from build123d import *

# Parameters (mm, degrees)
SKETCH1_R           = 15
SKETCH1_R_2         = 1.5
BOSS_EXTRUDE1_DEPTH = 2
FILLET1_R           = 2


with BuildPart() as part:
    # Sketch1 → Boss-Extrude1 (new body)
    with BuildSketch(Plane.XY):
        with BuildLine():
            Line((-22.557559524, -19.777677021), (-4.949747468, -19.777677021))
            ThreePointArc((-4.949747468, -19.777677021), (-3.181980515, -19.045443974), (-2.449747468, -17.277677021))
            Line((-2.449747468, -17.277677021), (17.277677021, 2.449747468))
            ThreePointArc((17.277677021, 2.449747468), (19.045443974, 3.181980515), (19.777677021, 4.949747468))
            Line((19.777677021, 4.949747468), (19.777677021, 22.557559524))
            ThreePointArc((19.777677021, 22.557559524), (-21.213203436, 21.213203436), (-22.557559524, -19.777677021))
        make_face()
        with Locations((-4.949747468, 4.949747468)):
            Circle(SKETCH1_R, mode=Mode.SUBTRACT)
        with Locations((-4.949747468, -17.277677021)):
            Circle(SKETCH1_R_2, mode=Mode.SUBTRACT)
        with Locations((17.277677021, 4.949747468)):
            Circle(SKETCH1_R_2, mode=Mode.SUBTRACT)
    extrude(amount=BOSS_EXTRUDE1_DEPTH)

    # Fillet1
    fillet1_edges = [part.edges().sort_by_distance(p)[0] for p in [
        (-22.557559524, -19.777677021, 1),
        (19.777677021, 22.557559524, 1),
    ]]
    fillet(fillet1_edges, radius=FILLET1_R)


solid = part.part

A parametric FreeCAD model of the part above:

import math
import FreeCAD as App
import Part
import Sketcher
from FreeCAD import Vector
Q = App.Units.Quantity


def edges_at(feature, points):
    """Names of the edges that pass closest to the given points."""
    edges = feature.Shape.Edges
    near = lambda p: min(range(len(edges)), key=lambda i: edges[i].distToShape(Part.Vertex(*p))[0])
    return sorted({f"Edge{near(p) + 1}" for p in points})

doc = App.newDocument("Part")
body = doc.addObject("PartDesign::Body", "Body")

# Sketch on XY plane
sketch1 = body.newObject("Sketcher::SketchObject", "Sketch")
sketch1.AttachmentSupport = (doc.getObject("XY_Plane"), [""])
sketch1.MapMode = "FlatFace"
sketch1.addGeometry(Part.LineSegment(Vector(-22.6, -19.8, 0), Vector(-4.9, -19.8, 0)), False)
sketch1.addGeometry(Part.ArcOfCircle(Part.Circle(Vector(-4.9, -17.3, 0), Vector(0, 0, 1), 2.5), math.radians(-90), math.radians(0)), False)
sketch1.addGeometry(Part.LineSegment(Vector(-2.4, -17.3, 0), Vector(17.3, 2.4, 0)), False)
sketch1.addGeometry(Part.ArcOfCircle(Part.Circle(Vector(17.3, 4.9, 0), Vector(0, 0, 1), 2.5), math.radians(-90), math.radians(0)), False)
sketch1.addGeometry(Part.LineSegment(Vector(19.8, 4.9, 0), Vector(19.8, 22.6, 0)), False)
sketch1.addGeometry(Part.ArcOfCircle(Part.Circle(Vector(0, 0, 0), Vector(0, 0, 1), 30), math.radians(49), math.radians(221)), False)
sketch1.addGeometry(Part.Circle(Vector(-4.9, -17.3, 0), Vector(0, 0, 1), 1.5), False)
sketch1.addGeometry(Part.Circle(Vector(-4.9, 4.9, 0), Vector(0, 0, 1), 15), False)
sketch1.addGeometry(Part.Circle(Vector(17.3, 4.9, 0), Vector(0, 0, 1), 1.5), False)
sketch1.addConstraint(Sketcher.Constraint("Tangent", 0, 2, 1, 1))
sketch1.addConstraint(Sketcher.Constraint("Coincident", 1, 2, 2, 1))
sketch1.addConstraint(Sketcher.Constraint("Coincident", 2, 2, 3, 1))
sketch1.addConstraint(Sketcher.Constraint("Tangent", 3, 2, 4, 1))
sketch1.addConstraint(Sketcher.Constraint("Coincident", 4, 2, 5, 1))
sketch1.addConstraint(Sketcher.Constraint("Coincident", 5, 2, 0, 1))
sketch1.addConstraint(Sketcher.Constraint("Horizontal", 0))
sketch1.addConstraint(Sketcher.Constraint("Vertical", 4))
sketch1.addConstraint(Sketcher.Constraint("Coincident", 5, 3, -1, 1))
sketch1.addConstraint(Sketcher.Constraint("Coincident", 6, 3, 1, 3))
sketch1.addConstraint(Sketcher.Constraint("Coincident", 8, 3, 3, 3))
sketch1.addConstraint(Sketcher.Constraint("Equal", 1, 3))
sketch1.addConstraint(Sketcher.Constraint("Equal", 6, 8))
sketch1.addConstraint(Sketcher.Constraint("Horizontal", 3, 3, 7, 3))
sketch1.addConstraint(Sketcher.Constraint("Horizontal", 6, 3, 1, 2))
sketch1.addConstraint(Sketcher.Constraint("Vertical", 6, 3, 7, 3))
sketch1.addConstraint(Sketcher.Constraint("Vertical", 8, 3, 2, 2))
sketch1.addConstraint(Sketcher.Constraint("Equal", 0, 4))
sketch1.addConstraint(Sketcher.Constraint("Diameter", 6, 3.0))
sketch1.addConstraint(Sketcher.Constraint("Diameter", 7, 30.0))
sketch1.addConstraint(Sketcher.Constraint("Radius", 5, 30.0))
sketch1.addConstraint(Sketcher.Constraint("Radius", 1, 2.5))
sketch1.addConstraint(Sketcher.Constraint("Angle", 2, Q("45 deg")))
sketch1.addConstraint(Sketcher.Constraint("Distance", 2, 27.898791))
sketch1.addConstraint(Sketcher.Constraint("DistanceX", 0, 1, 0, 2, 17.607812))
pad1 = body.newObject("PartDesign::Pad", "Pad")
pad1.Profile = sketch1
pad1.Length = 2
doc.recompute()

fillet = body.newObject("PartDesign::Fillet", "Fillet")
fillet.Base = (pad1, edges_at(pad1, [(-22.558, -19.778, 1), (19.778, 22.558, 1)]))
fillet.Radius = 2

doc.recompute()
